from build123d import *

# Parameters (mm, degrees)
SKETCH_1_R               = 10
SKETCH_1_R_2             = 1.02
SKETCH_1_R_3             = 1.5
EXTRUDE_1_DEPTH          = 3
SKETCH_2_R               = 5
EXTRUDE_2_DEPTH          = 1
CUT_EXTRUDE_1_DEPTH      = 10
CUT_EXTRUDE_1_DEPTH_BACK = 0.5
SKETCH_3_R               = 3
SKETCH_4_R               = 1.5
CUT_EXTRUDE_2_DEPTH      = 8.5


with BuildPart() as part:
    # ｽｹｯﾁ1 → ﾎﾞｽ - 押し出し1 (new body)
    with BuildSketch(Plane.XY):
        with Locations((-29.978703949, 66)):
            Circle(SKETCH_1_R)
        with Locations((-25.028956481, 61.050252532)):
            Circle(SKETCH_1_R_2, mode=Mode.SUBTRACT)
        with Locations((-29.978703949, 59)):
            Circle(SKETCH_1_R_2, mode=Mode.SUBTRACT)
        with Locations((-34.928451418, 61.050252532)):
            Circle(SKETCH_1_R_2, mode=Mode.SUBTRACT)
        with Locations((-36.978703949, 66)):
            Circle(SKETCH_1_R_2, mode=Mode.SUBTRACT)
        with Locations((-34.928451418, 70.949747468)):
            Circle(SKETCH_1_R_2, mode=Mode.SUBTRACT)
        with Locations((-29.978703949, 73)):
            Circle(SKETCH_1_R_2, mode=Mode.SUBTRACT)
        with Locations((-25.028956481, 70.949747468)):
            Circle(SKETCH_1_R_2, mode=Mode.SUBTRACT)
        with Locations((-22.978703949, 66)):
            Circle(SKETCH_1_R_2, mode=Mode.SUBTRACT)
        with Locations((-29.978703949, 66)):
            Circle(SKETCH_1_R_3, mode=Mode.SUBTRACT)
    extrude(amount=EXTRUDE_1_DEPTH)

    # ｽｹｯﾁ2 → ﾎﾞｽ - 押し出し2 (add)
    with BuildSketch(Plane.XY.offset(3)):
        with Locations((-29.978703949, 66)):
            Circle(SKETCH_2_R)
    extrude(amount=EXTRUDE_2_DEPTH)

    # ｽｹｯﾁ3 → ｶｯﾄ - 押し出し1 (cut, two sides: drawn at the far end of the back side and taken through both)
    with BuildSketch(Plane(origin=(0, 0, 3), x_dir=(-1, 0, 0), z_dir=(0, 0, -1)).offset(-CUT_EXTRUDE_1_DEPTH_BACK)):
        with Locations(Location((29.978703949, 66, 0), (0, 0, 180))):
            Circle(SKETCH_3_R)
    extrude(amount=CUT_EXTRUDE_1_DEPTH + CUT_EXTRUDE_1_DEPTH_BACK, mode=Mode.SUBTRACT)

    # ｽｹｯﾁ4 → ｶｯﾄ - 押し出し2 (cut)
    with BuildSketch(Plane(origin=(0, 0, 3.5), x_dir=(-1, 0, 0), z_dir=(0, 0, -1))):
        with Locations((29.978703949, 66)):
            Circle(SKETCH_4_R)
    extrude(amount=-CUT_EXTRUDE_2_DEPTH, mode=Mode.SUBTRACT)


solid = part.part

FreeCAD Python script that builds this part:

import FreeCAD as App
import Part
import Sketcher
from FreeCAD import Vector
Q = App.Units.Quantity

doc = App.newDocument("Part")
body = doc.addObject("PartDesign::Body", "Body")

sketch1 = doc.addObject("Sketcher::SketchObject", "Sketch")
body.addObject(sketch1)
sketch1.AttachmentSupport = (doc.XY_Plane, [""])
sketch1.MapMode = "FlatFace"
sketch1.addGeometry([
    Part.Circle(Vector(-29.978704, 66, 0), Vector(0, 0, 1), 10),
    Part.Circle(Vector(-34.928451, 61.050253, 0), Vector(0, 0, 1), 1.02),
    Part.Circle(Vector(-29.978704, 59, 0), Vector(0, 0, 1), 1.02),
    Part.Circle(Vector(-25.028956, 61.050253, 0), Vector(0, 0, 1), 1.02),
    Part.Circle(Vector(-36.978704, 66, 0), Vector(0, 0, 1), 1.02),
    Part.Circle(Vector(-34.928451, 70.949747, 0), Vector(0, 0, 1), 1.02),
    Part.Circle(Vector(-29.978704, 66, 0), Vector(0, 0, 1), 1.5),
    Part.Circle(Vector(-22.978704, 66, 0), Vector(0, 0, 1), 1.02),
    Part.Circle(Vector(-29.978704, 73, 0), Vector(0, 0, 1), 1.02),
    Part.Circle(Vector(-25.028956, 70.949747, 0), Vector(0, 0, 1), 1.02),
], False)
sketch1.addConstraint([
    Sketcher.Constraint("Coincident", 6, 3, 0, 3),
    Sketcher.Constraint("Equal", 1, 2),
    Sketcher.Constraint("Equal", 2, 3),
    Sketcher.Constraint("Equal", 3, 4),
    Sketcher.Constraint("Equal", 4, 5),
    Sketcher.Constraint("Equal", 5, 7),
    Sketcher.Constraint("Equal", 7, 8),
    Sketcher.Constraint("Equal", 8, 9),
    Sketcher.Constraint("Horizontal", 1, 3, 3, 3),
    Sketcher.Constraint("Horizontal", 0, 3, 4, 3),
    Sketcher.Constraint("Horizontal", 6, 3, 7, 3),
    Sketcher.Constraint("Horizontal", 5, 3, 9, 3),
    Sketcher.Constraint("Vertical", 0, 3, 2, 3),
    Sketcher.Constraint("Vertical", 1, 3, 5, 3),
    Sketcher.Constraint("Vertical", 6, 3, 8, 3),
    Sketcher.Constraint("Vertical", 3, 3, 9, 3),
    Sketcher.Constraint("Diameter", 0, Q("20 mm")),
    Sketcher.Constraint("Diameter", 6, Q("3 mm")),
    Sketcher.Constraint("Diameter", 1, Q("2.04 mm")),
    Sketcher.Constraint("DistanceY", -1, 1, 0, 3, Q("66 mm")),
    Sketcher.Constraint("DistanceY", -1, 1, 2, 3, Q("59 mm")),
    Sketcher.Constraint("DistanceY", -1, 1, 8, 3, Q("73 mm")),
    Sketcher.Constraint("DistanceX", 4, 3, 0, 3, Q("7 mm")),
    Sketcher.Constraint("DistanceX", 0, 3, 7, 3, Q("7 mm")),
    Sketcher.Constraint("DistanceX", 1, 3, -1, 1, Q("34.928451 mm")),
    Sketcher.Constraint("DistanceX", 0, 3, -1, 1, Q("29.978704 mm")),
    Sketcher.Constraint("DistanceY", -1, 1, 1, 3, Q("61.050253 mm")),
    Sketcher.Constraint("DistanceX", 3, 3, -1, 1, Q("25.028956 mm")),
    Sketcher.Constraint("DistanceY", -1, 1, 5, 3, Q("70.949747 mm")),
])
pad1 = doc.addObject("PartDesign::Pad", "Pad")
body.addObject(pad1)
pad1.Profile = sketch1
pad1.Length = 3

sketch2 = doc.addObject("Sketcher::SketchObject", "Sketch001")
body.addObject(sketch2)
sketch2.AttachmentSupport = (doc.XY_Plane, [""])
sketch2.MapMode = "FlatFace"
sketch2.AttachmentOffset = App.Placement(Vector(0, 0, 3), App.Rotation())
sketch2.addGeometry(Part.Circle(Vector(-29.978704, 66, 0), Vector(0, 0, 1), 5), False)
sketch2.addConstraint([
    Sketcher.Constraint("Diameter", 0, Q("10 mm")),
    Sketcher.Constraint("DistanceY", -1, 1, 0, 3, Q("66 mm")),
    Sketcher.Constraint("DistanceX", 0, 3, -1, 1, Q("29.978704 mm")),
])
pad2 = doc.addObject("PartDesign::Pad", "Pad001")
body.addObject(pad2)
pad2.Profile = sketch2
pad2.Length = 1

sketch3 = doc.addObject("Sketcher::SketchObject", "Sketch002")
body.addObject(sketch3)
sketch3.AttachmentSupport = (doc.XY_Plane, [""])
sketch3.MapMode = "FlatFace"
sketch3.AttachmentOffset = App.Placement(Vector(0, 0, 3), App.Rotation())
sketch3.addGeometry(Part.Circle(Vector(-29.978704, 66, 0), Vector(0, 0, 1), 3), False)
sketch3.addConstraint([
    Sketcher.Constraint("Diameter", 0, Q("6 mm")),
    Sketcher.Constraint("DistanceY", -1, 1, 0, 3, Q("66 mm")),
    Sketcher.Constraint("DistanceX", 0, 3, -1, 1, Q("29.978704 mm")),
])
pocket1 = doc.addObject("PartDesign::Pocket", "Pocket")
body.addObject(pocket1)
pocket1.Profile = sketch3
pocket1.Type = "TwoLengths"
pocket1.Length = 10
pocket1.Length2 = 0.5

sketch4 = doc.addObject("Sketcher::SketchObject", "Sketch003")
body.addObject(sketch4)
sketch4.AttachmentSupport = (doc.XY_Plane, [""])
sketch4.MapMode = "FlatFace"
sketch4.AttachmentOffset = App.Placement(Vector(0, 0, 3.5), App.Rotation())
sketch4.addGeometry(Part.Circle(Vector(-29.978704, 66, 0), Vector(0, 0, 1), 1.5), False)
sketch4.addConstraint([
    Sketcher.Constraint("Diameter", 0, Q("3 mm")),
    Sketcher.Constraint("DistanceY", -1, 1, 0, 3, Q("66 mm")),
    Sketcher.Constraint("DistanceX", 0, 3, -1, 1, Q("29.978704 mm")),
])
pocket2 = doc.addObject("PartDesign::Pocket", "Pocket001")
body.addObject(pocket2)
pocket2.Profile = sketch4
pocket2.Length = 8.5
pocket2.Reversed = True

doc.recompute()
